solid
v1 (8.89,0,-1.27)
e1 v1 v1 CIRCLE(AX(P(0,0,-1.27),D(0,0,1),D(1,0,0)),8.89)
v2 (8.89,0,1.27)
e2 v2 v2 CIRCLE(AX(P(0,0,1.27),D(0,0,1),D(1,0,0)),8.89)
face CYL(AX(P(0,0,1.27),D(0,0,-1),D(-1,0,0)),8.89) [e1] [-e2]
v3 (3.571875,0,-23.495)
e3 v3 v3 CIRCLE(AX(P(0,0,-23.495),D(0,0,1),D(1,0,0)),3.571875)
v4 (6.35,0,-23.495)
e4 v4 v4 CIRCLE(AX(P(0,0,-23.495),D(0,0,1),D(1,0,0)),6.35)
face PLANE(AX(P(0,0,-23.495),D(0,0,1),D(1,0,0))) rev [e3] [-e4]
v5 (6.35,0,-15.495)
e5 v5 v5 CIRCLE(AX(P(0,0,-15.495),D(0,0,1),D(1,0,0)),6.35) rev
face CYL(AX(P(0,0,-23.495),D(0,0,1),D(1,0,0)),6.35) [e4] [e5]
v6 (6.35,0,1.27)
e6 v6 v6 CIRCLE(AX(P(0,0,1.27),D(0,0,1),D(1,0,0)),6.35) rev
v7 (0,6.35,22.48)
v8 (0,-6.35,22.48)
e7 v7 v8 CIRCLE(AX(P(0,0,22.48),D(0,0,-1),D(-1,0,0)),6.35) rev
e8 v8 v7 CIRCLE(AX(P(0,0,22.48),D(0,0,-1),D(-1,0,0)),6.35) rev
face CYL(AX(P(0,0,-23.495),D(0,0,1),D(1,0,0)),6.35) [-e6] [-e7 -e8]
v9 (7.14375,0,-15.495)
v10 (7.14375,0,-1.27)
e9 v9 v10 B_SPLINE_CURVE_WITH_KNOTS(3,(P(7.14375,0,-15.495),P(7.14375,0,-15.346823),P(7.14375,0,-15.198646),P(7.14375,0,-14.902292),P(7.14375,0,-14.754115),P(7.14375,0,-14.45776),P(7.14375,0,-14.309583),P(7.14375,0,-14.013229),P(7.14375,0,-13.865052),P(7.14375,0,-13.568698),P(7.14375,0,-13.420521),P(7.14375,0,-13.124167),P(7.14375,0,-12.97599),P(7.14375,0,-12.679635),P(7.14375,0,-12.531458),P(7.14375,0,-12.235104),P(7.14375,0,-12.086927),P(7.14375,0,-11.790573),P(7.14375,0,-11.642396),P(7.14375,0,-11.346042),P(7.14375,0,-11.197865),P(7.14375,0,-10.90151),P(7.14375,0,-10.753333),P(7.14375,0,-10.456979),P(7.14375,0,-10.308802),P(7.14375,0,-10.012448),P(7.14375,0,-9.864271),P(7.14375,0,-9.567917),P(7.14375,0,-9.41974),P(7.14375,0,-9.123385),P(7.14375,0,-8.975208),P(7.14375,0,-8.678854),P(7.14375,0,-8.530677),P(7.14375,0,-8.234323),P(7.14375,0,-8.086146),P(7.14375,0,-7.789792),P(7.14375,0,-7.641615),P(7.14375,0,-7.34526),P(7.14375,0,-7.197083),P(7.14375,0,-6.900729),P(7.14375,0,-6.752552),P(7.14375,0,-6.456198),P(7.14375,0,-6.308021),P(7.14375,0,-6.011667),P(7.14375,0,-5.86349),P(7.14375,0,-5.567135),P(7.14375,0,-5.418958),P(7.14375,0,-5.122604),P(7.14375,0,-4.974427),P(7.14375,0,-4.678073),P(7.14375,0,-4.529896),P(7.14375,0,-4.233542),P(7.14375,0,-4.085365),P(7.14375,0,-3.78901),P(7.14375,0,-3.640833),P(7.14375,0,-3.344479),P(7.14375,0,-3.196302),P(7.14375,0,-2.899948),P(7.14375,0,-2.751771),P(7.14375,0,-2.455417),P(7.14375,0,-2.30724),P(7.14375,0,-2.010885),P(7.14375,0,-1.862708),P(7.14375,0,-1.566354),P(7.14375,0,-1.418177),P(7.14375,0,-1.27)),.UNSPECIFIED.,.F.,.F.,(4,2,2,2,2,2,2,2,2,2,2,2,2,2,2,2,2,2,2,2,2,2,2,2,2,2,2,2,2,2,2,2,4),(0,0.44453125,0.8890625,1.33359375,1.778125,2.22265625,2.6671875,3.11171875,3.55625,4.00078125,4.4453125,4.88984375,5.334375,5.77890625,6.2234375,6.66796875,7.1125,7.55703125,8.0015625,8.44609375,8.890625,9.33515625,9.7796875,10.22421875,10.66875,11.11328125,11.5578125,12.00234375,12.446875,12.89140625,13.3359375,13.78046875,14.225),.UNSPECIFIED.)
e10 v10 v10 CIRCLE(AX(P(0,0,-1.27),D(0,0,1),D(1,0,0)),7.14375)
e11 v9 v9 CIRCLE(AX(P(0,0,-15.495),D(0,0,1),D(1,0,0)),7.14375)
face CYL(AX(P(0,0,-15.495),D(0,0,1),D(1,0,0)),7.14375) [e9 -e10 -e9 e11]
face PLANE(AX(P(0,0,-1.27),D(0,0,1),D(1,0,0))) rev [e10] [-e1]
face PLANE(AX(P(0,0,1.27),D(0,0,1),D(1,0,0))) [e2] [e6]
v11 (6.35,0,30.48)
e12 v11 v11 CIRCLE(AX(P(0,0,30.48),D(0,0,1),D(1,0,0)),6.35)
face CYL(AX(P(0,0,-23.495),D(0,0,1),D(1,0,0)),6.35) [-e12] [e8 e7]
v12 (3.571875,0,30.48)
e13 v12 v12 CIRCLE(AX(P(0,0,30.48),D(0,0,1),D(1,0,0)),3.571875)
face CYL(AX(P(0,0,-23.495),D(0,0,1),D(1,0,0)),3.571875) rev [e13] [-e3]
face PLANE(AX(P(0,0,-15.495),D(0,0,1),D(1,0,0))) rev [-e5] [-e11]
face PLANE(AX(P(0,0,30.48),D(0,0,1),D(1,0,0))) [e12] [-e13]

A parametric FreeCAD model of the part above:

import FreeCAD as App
import Part
import Sketcher

V = App.Vector
Q = App.Units.Quantity

doc = App.newDocument("Part")
body = doc.addObject("PartDesign::Body", "Body")

sketch1 = body.newObject("Sketcher::SketchObject", "Sketch")
sketch1.AttachmentSupport = (doc.getObject("XY_Plane"), [""])
sketch1.MapMode = "FlatFace"
sketch1.addGeometry(Part.Circle(V(0, 0, 0), V(0, 0, 1), 6), False)
sketch1.addConstraint([
    Sketcher.Constraint("Coincident", 0, 3, -1, 1),
    Sketcher.Constraint("Diameter", 0, Q("0.5 in")),
])
pad1 = body.newObject("PartDesign::Pad", "Pad")
pad1.Profile = sketch1
pad1.Type = "TwoLengths"
pad1.Length = Q("1.2 in")
pad1.Length2 = Q("0.925 in")

sketch2 = body.newObject("Sketcher::SketchObject", "Sketch001")
sketch2.AttachmentSupport = (doc.getObject("XY_Plane"), [""])
sketch2.MapMode = "FlatFace"
sketch2.addGeometry(Part.Circle(V(0, 0, 0), V(0, 0, 1), 9), False)
sketch2.addConstraint([
    Sketcher.Constraint("Coincident", 0, 3, -1, 1),
    Sketcher.Constraint("Diameter", 0, Q("0.7 in")),
])
pad2 = body.newObject("PartDesign::Pad", "Pad001")
pad2.Profile = sketch2
pad2.Length = Q("0.1 in")
pad2.Midplane = True

sketch3 = body.newObject("Sketcher::SketchObject", "Sketch002")
sketch3.AttachmentSupport = (doc.getObject("XY_Plane"), [""])
sketch3.MapMode = "FlatFace"
sketch3.addGeometry(Part.Circle(V(0, 0, 0), V(0, 0, 1), 7), False)
sketch3.addConstraint([
    Sketcher.Constraint("Coincident", 0, 3, -1, 1),
    Sketcher.Constraint("Diameter", 0, Q("0.5625 in")),
])
pad3 = body.newObject("PartDesign::Pad", "Pad002")
pad3.Profile = sketch3
pad3.Length = 15.495
pad3.Reversed = True

sketch4 = body.newObject("Sketcher::SketchObject", "Sketch003")
sketch4.AttachmentSupport = (doc.getObject("XY_Plane"), [""])
sketch4.MapMode = "FlatFace"
sketch4.AttachmentOffset = App.Placement(V(0, 0, 1.2 * 25.4), App.Rotation())
sketch4.addGeometry(Part.Circle(V(0, 0, 0), V(0, 0, 1), 3.6), False)
sketch4.addConstraint([
    Sketcher.Constraint("Coincident", 0, 3, -1, 1),
    Sketcher.Constraint("Diameter", 0, Q("0.28125 in")),
])
pocket1 = body.newObject("PartDesign::Pocket", "Pocket")
pocket1.Profile = sketch4
pocket1.Type = "ThroughAll"

doc.recompute()
